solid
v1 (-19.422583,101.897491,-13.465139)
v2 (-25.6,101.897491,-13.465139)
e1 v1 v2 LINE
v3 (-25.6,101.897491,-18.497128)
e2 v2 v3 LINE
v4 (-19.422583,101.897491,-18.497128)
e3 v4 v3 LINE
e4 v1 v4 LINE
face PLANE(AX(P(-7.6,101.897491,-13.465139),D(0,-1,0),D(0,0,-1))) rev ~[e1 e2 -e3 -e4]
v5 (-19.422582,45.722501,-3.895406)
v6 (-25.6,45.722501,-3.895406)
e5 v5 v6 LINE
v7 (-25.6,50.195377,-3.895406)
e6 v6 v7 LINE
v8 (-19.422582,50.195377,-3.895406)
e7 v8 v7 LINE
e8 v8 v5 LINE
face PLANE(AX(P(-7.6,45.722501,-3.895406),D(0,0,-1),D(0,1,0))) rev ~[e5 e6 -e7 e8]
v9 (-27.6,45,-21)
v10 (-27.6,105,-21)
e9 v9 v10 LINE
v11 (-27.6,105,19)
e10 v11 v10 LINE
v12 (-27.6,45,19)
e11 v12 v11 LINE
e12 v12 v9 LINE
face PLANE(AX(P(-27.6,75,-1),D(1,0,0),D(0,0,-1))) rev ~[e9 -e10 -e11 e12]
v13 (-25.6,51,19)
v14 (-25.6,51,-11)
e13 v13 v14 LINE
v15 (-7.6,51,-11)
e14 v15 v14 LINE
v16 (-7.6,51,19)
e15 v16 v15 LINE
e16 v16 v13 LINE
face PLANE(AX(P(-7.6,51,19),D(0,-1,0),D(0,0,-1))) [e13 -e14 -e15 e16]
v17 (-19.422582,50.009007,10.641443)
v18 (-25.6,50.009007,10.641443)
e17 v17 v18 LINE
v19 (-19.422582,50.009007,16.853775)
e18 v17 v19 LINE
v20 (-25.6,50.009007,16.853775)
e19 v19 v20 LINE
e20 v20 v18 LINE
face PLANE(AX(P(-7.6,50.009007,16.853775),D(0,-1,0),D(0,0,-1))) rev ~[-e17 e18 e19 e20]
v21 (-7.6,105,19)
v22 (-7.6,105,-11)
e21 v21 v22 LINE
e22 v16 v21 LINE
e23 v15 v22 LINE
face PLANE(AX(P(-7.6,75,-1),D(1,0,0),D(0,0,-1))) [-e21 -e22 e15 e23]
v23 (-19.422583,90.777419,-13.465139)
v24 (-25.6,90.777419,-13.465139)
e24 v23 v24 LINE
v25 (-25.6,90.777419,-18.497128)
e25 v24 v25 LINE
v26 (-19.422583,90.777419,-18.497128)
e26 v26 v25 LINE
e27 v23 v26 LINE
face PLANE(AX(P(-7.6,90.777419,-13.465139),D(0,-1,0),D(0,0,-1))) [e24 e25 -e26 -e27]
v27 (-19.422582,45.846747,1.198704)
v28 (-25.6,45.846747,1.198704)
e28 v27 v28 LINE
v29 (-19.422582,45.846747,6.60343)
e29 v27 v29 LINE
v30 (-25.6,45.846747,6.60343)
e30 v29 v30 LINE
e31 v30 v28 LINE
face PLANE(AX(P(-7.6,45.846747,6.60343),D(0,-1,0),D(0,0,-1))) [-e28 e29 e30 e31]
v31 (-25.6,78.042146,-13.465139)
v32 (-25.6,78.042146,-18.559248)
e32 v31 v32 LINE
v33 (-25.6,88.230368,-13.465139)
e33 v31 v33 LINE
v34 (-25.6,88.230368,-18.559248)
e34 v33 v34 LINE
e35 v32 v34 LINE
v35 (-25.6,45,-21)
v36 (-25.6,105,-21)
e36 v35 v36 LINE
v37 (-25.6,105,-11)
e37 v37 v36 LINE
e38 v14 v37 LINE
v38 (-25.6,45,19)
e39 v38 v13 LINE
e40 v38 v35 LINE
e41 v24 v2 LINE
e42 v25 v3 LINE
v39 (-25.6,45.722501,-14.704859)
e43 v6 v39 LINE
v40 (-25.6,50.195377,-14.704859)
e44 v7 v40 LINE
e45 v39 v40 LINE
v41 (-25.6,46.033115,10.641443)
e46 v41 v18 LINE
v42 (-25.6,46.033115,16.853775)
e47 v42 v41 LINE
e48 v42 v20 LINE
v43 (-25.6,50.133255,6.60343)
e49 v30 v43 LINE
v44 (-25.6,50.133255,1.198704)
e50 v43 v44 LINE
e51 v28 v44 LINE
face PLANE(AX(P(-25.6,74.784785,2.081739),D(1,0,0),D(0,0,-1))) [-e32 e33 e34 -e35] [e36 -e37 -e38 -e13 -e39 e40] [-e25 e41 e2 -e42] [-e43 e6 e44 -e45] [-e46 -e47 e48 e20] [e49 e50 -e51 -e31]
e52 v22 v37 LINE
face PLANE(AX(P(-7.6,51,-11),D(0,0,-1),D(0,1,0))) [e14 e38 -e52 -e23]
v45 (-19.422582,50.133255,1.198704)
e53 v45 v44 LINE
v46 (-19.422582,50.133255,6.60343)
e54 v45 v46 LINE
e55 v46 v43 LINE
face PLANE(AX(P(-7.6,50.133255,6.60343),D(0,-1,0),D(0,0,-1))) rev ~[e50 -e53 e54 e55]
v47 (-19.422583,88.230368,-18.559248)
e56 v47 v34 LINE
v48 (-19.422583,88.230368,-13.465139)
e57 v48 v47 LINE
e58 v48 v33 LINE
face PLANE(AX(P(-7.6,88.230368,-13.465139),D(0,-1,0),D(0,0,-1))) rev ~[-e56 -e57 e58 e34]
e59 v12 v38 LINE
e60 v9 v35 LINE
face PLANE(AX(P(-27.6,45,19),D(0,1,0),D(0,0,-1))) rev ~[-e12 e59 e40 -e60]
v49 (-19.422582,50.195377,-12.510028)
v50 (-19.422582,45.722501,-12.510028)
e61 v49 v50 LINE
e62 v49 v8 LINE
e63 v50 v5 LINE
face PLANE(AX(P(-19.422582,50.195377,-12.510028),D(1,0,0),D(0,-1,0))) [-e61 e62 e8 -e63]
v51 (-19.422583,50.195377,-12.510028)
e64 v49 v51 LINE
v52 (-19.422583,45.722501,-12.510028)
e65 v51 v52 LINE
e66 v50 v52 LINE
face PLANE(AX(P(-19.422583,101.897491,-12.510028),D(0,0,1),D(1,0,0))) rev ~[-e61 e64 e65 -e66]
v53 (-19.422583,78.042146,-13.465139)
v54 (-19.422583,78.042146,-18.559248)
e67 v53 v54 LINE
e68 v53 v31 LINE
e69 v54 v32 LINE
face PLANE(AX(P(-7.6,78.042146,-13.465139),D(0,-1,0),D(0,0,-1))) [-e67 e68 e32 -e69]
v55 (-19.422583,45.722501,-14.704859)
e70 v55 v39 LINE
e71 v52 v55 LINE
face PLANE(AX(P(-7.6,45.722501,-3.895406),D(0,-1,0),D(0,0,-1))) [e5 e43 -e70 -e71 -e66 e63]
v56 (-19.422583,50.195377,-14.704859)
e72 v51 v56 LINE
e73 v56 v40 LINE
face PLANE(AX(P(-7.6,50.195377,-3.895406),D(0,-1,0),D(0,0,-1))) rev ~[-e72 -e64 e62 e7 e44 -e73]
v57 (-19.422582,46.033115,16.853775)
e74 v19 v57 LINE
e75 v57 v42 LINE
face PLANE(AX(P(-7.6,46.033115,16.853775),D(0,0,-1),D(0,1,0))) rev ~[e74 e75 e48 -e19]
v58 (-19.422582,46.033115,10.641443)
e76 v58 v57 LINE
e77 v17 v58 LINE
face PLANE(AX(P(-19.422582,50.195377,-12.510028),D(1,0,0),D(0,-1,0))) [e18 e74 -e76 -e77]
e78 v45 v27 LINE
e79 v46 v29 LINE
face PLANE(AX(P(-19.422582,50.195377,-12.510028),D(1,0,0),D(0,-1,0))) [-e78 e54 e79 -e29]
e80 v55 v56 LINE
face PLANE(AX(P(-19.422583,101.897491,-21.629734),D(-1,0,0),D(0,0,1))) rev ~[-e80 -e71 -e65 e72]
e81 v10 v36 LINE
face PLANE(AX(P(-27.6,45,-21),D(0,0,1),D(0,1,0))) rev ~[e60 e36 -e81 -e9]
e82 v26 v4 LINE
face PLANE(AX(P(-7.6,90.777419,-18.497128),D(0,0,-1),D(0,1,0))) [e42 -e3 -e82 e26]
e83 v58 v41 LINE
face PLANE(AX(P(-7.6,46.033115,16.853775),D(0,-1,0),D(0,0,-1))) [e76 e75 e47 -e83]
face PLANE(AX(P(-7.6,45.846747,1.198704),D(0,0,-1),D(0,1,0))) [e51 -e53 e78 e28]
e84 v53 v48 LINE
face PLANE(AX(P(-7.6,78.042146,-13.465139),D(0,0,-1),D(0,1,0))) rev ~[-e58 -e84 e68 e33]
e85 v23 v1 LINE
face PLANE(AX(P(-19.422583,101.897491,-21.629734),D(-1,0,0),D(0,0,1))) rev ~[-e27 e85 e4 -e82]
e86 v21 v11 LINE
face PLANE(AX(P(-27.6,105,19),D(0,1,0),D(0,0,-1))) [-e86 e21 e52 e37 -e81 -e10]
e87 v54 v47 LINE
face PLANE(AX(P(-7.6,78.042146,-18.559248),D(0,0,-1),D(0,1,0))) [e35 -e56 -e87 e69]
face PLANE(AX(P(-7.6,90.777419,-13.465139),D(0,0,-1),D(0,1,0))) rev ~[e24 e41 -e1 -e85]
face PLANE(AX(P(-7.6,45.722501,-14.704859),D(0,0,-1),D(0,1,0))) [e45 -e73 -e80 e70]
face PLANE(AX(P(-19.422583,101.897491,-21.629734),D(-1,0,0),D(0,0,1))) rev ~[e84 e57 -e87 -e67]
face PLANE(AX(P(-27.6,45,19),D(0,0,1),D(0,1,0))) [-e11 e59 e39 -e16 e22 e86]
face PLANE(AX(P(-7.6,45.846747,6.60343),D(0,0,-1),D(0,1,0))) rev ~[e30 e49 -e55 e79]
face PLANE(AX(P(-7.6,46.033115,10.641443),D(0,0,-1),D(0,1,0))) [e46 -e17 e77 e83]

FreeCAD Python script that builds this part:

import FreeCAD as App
import Part
import Sketcher
Q = App.Units.Quantity

doc = App.newDocument("Part")
body = doc.addObject("PartDesign::Body", "Body")

# Sketch on XY plane
sketch1 = body.newObject("Sketcher::SketchObject", "Sketch")
sketch1.AttachmentSupport = (doc.getObject("XY_Plane"), [""])
sketch1.MapMode = "FlatFace"
sketch1.addGeometry([
    Part.LineSegment(App.Vector(-20, 30, 0), App.Vector(-20, -30, 0)),
    Part.LineSegment(App.Vector(-20, -30, 0), App.Vector(20, -30, 0)),
    Part.LineSegment(App.Vector(20, -30, 0), App.Vector(20, 30, 0)),
    Part.LineSegment(App.Vector(20, 30, 0), App.Vector(-20, 30, 0)),
], False)
sketch1.addConstraint([
    Sketcher.Constraint("Coincident", 0, 2, 1, 1),
    Sketcher.Constraint("Coincident", 1, 2, 2, 1),
    Sketcher.Constraint("Coincident", 2, 2, 3, 1),
    Sketcher.Constraint("Coincident", 3, 2, 0, 1),
    Sketcher.Constraint("Vertical", 0),
    Sketcher.Constraint("Horizontal", 1),
    Sketcher.Constraint("Vertical", 2),
    Sketcher.Constraint("Horizontal", 3),
    Sketcher.Constraint("Symmetric", 0, 2, 2, 2, -1, 1),
    Sketcher.Constraint("DistanceX", 1, 1, 1, 2, Q("40 mm")),
    Sketcher.Constraint("DistanceY", 0, 2, 0, 1, Q("60 mm")),
])
pad1 = body.newObject("PartDesign::Pad", "Pad")
pad1.Profile = sketch1
pad1.Length = 20

# Sketch on XY plane
sketch2 = body.newObject("Sketcher::SketchObject", "Sketch001")
sketch2.AttachmentSupport = (doc.getObject("XY_Plane"), [""])
sketch2.MapMode = "FlatFace"
sketch2.AttachmentOffset = App.Placement(App.Vector(0, 0, 20), App.Rotation())
sketch2.addGeometry([
    Part.LineSegment(App.Vector(-41.450038, 37.736043, 0), App.Vector(-41.450038, -38.166472, 0)),  # 0
    Part.LineSegment(App.Vector(-41.450038, -38.166472, 0), App.Vector(35.286561, -38.166472, 0)),  # 1
    Part.LineSegment(App.Vector(35.286561, -38.166472, 0), App.Vector(35.286561, 37.736043, 0)),  # 2
    Part.LineSegment(App.Vector(35.286561, 37.736043, 0), App.Vector(-41.450038, 37.736043, 0)),  # 3
    Part.LineSegment(App.Vector(-11.641443, -28.966885, 0), App.Vector(-17.853775, -28.966885, 0)),  # 4
    Part.LineSegment(App.Vector(-17.853775, -28.966885, 0), App.Vector(-17.853775, -24.990993, 0)),  # 5
    Part.LineSegment(App.Vector(-17.853775, -24.990993, 0), App.Vector(-11.641443, -24.990993, 0)),  # 6
    Part.LineSegment(App.Vector(-11.641443, -24.990993, 0), App.Vector(-11.641443, -28.966885, 0)),  # 7
    Part.LineSegment(App.Vector(-2.198704, -29.153254, 0), App.Vector(-7.60343, -29.153254, 0)),  # 8
    Part.LineSegment(App.Vector(-7.60343, -29.153254, 0), App.Vector(-7.60343, -24.866744, 0)),  # 9
    Part.LineSegment(App.Vector(-7.60343, -24.866744, 0), App.Vector(-2.198704, -24.866744, 0)),  # 10
    Part.LineSegment(App.Vector(-2.198704, -24.866744, 0), App.Vector(-2.198704, -29.153254, 0)),  # 11
    Part.LineSegment(App.Vector(13.704859, -29.2775, 0), App.Vector(2.895406, -29.2775, 0)),  # 12
    Part.LineSegment(App.Vector(2.895406, -29.2775, 0), App.Vector(2.895406, -24.804623, 0)),  # 13
    Part.LineSegment(App.Vector(2.895406, -24.804623, 0), App.Vector(13.704859, -24.804623, 0)),  # 14
    Part.LineSegment(App.Vector(13.704859, -24.804623, 0), App.Vector(13.704859, -29.2775, 0)),  # 15
    Part.LineSegment(App.Vector(10, -24, 0), App.Vector(-20, -24, 0)),  # 16
    Part.LineSegment(App.Vector(-20, -24, 0), App.Vector(-20, 30, 0)),  # 17
    Part.LineSegment(App.Vector(-20, 30, 0), App.Vector(10, 30, 0)),  # 18
    Part.LineSegment(App.Vector(10, 30, 0), App.Vector(10, -24, 0)),  # 19
    Part.LineSegment(App.Vector(17.559248, 3.042146, 0), App.Vector(12.465139, 3.042146, 0)),  # 20
    Part.LineSegment(App.Vector(12.465139, 3.042146, 0), App.Vector(12.465139, 13.230368, 0)),  # 21
    Part.LineSegment(App.Vector(12.465139, 13.230368, 0), App.Vector(17.559248, 13.230368, 0)),  # 22
    Part.LineSegment(App.Vector(17.559248, 13.230368, 0), App.Vector(17.559248, 3.042146, 0)),  # 23
    Part.LineSegment(App.Vector(17.497128, 15.77742, 0), App.Vector(12.465139, 15.77742, 0)),  # 24
    Part.LineSegment(App.Vector(12.465139, 15.77742, 0), App.Vector(12.465139, 26.89749, 0)),  # 25
    Part.LineSegment(App.Vector(12.465139, 26.89749, 0), App.Vector(17.497128, 26.89749, 0)),  # 26
    Part.LineSegment(App.Vector(17.497128, 26.89749, 0), App.Vector(17.497128, 15.77742, 0)),  # 27
], False)
sketch2.addConstraint([
    Sketcher.Constraint("Coincident", 0, 2, 1, 1),
    Sketcher.Constraint("Coincident", 1, 2, 2, 1),
    Sketcher.Constraint("Coincident", 2, 2, 3, 1),
    Sketcher.Constraint("Coincident", 3, 2, 0, 1),
    Sketcher.Constraint("Coincident", 4, 2, 5, 1),
    Sketcher.Constraint("Coincident", 5, 2, 6, 1),
    Sketcher.Constraint("Coincident", 6, 2, 7, 1),
    Sketcher.Constraint("Coincident", 7, 2, 4, 1),
    Sketcher.Constraint("Coincident", 8, 2, 9, 1),
    Sketcher.Constraint("Coincident", 9, 2, 10, 1),
    Sketcher.Constraint("Coincident", 10, 2, 11, 1),
    Sketcher.Constraint("Coincident", 11, 2, 8, 1),
    Sketcher.Constraint("Coincident", 12, 2, 13, 1),
    Sketcher.Constraint("Coincident", 13, 2, 14, 1),
    Sketcher.Constraint("Coincident", 14, 2, 15, 1),
    Sketcher.Constraint("Coincident", 15, 2, 12, 1),
    Sketcher.Constraint("Coincident", 16, 2, 17, 1),
    Sketcher.Constraint("Coincident", 17, 2, 18, 1),
    Sketcher.Constraint("Coincident", 18, 2, 19, 1),
    Sketcher.Constraint("Coincident", 19, 2, 16, 1),
    Sketcher.Constraint("Coincident", 20, 2, 21, 1),
    Sketcher.Constraint("Coincident", 21, 2, 22, 1),
    Sketcher.Constraint("Coincident", 22, 2, 23, 1),
    Sketcher.Constraint("Coincident", 23, 2, 20, 1),
    Sketcher.Constraint("Coincident", 24, 2, 25, 1),
    Sketcher.Constraint("Coincident", 25, 2, 26, 1),
    Sketcher.Constraint("Coincident", 26, 2, 27, 1),
    Sketcher.Constraint("Coincident", 27, 2, 24, 1),
    Sketcher.Constraint("Vertical", 0),
    Sketcher.Constraint("Horizontal", 1),
    Sketcher.Constraint("Vertical", 2),
    Sketcher.Constraint("Horizontal", 3),
    Sketcher.Constraint("Horizontal", 4),
    Sketcher.Constraint("Vertical", 5),
    Sketcher.Constraint("Horizontal", 6),
    Sketcher.Constraint("Vertical", 7),
    Sketcher.Constraint("Horizontal", 8),
    Sketcher.Constraint("Vertical", 9),
    Sketcher.Constraint("Horizontal", 10),
    Sketcher.Constraint("Vertical", 11),
    Sketcher.Constraint("Horizontal", 12),
    Sketcher.Constraint("Vertical", 13),
    Sketcher.Constraint("Horizontal", 14),
    Sketcher.Constraint("Vertical", 15),
    Sketcher.Constraint("Horizontal", 16),
    Sketcher.Constraint("Vertical", 17),
    Sketcher.Constraint("Horizontal", 18),
    Sketcher.Constraint("Vertical", 19),
    Sketcher.Constraint("Horizontal", 20),
    Sketcher.Constraint("Vertical", 21),
    Sketcher.Constraint("Horizontal", 22),
    Sketcher.Constraint("Vertical", 23),
    Sketcher.Constraint("Horizontal", 24),
    Sketcher.Constraint("Vertical", 25),
    Sketcher.Constraint("Horizontal", 26),
    Sketcher.Constraint("Vertical", 27),
    Sketcher.Constraint("Vertical", 21, 2, 24, 2),
    Sketcher.Constraint("DistanceX", 16, 2, 16, 1, Q("30 mm")),
    Sketcher.Constraint("DistanceY", 17, 1, 17, 2, Q("54 mm")),
    Sketcher.Constraint("DistanceX", 16, 2, -1, 1, Q("20 mm")),
    Sketcher.Constraint("DistanceY", 16, 2, -1, 1, Q("24 mm")),
    Sketcher.Constraint("DistanceX", 1, 1, 1, 2, Q("76.736599 mm")),
    Sketcher.Constraint("DistanceX", 4, 2, 4, 1, Q("6.212331 mm")),
    Sketcher.Constraint("DistanceX", 20, 2, 20, 1, Q("5.094109 mm")),
    Sketcher.Constraint("DistanceX", 24, 2, 24, 1, Q("5.031989 mm")),
    Sketcher.Constraint("DistanceY", 9, 1, 9, 2, Q("4.286509 mm")),
    Sketcher.Constraint("DistanceY", 25, 1, 25, 2, Q("11.120071 mm")),
    Sketcher.Constraint("DistanceY", 12, 2, -1, 1, Q("29.2775 mm")),
    Sketcher.Constraint("DistanceX", 8, 2, 8, 1, Q("5.404726 mm")),
    Sketcher.Constraint("DistanceX", 12, 2, 12, 1, Q("10.809453 mm")),
    Sketcher.Constraint("DistanceY", 0, 2, 0, 1, Q("75.902515 mm")),
    Sketcher.Constraint("DistanceY", 5, 1, 5, 2, Q("3.975892 mm")),
    Sketcher.Constraint("DistanceY", 13, 1, 13, 2, Q("4.472877 mm")),
    Sketcher.Constraint("DistanceY", 21, 1, 21, 2, Q("10.188222 mm")),
    Sketcher.Constraint("DistanceX", 0, 2, -1, 1, Q("41.450038 mm")),
    Sketcher.Constraint("DistanceX", 8, 2, -1, 1, Q("7.60343 mm")),
    Sketcher.Constraint("DistanceX", -1, 1, 14, 2, Q("13.704859 mm")),
    Sketcher.Constraint("DistanceX", -1, 1, 20, 2, Q("12.465139 mm")),
    Sketcher.Constraint("DistanceY", -1, 1, 24, 2, Q("15.77742 mm")),
    Sketcher.Constraint("DistanceY", 0, 2, 5, 2, Q("13.175479 mm")),
    Sketcher.Constraint("DistanceY", 8, 2, 7, 2, Q("0.186369 mm")),
    Sketcher.Constraint("DistanceX", 6, 2, 10, 2, Q("9.442739 mm")),
    Sketcher.Constraint("DistanceY", 10, 2, 13, 2, Q("0.062122 mm")),
    Sketcher.Constraint("DistanceY", 14, 2, 20, 2, Q("27.846768 mm")),
])
pocket1 = body.newObject("PartDesign::Pocket", "Pocket")
pocket1.Profile = sketch2
pocket1.Length = 18

# Sketch on XZ plane
sketch3 = body.newObject("Sketcher::SketchObject", "Sketch002")
sketch3.AttachmentSupport = (doc.getObject("XZ_Plane"), [""])
sketch3.MapMode = "FlatFace"
sketch3.AttachmentOffset = App.Placement(App.Vector(0, 0, -26.897491), App.Rotation())
sketch3.addGeometry([
    Part.LineSegment(App.Vector(20.629734, 22.269789, 0), App.Vector(20.629734, 8.177417, 0)),
    Part.LineSegment(App.Vector(20.629734, 8.177417, 0), App.Vector(11.510028, 8.177417, 0)),
    Part.LineSegment(App.Vector(11.510028, 8.177417, 0), App.Vector(11.510028, 22.269789, 0)),
    Part.LineSegment(App.Vector(11.510028, 22.269789, 0), App.Vector(20.629734, 22.269789, 0)),
], False)
sketch3.addConstraint([
    Sketcher.Constraint("Coincident", 0, 2, 1, 1),
    Sketcher.Constraint("Coincident", 1, 2, 2, 1),
    Sketcher.Constraint("Coincident", 2, 2, 3, 1),
    Sketcher.Constraint("Coincident", 3, 2, 0, 1),
    Sketcher.Constraint("Vertical", 0),
    Sketcher.Constraint("Horizontal", 1),
    Sketcher.Constraint("Vertical", 2),
    Sketcher.Constraint("Horizontal", 3),
    Sketcher.Constraint("DistanceY", 0, 2, 0, 1, Q("14.092372 mm")),
    Sketcher.Constraint("DistanceX", 1, 2, 1, 1, Q("9.119706 mm")),
    Sketcher.Constraint("DistanceY", -1, 1, 2, 2, Q("22.269789 mm")),
    Sketcher.Constraint("DistanceX", -1, 1, 0, 2, Q("20.629734 mm")),
])
pocket2 = body.newObject("PartDesign::Pocket", "Pocket001")
pocket2.Profile = sketch3
pocket2.Type = "ThroughAll"
pocket2.Reversed = True

# Sketch on YZ plane
sketch4 = body.newObject("Sketcher::SketchObject", "Sketch003")
sketch4.AttachmentSupport = (doc.getObject("YZ_Plane"), [""])
sketch4.MapMode = "FlatFace"
sketch4.AttachmentOffset = App.Placement(App.Vector(0, 0, 11.510028), App.Rotation())
sketch4.addGeometry([
    Part.LineSegment(App.Vector(-24.804623, 8.177418, 0), App.Vector(-24.804623, 20, 0)),
    Part.LineSegment(App.Vector(-24.804623, 20, 0), App.Vector(-29.2775, 20, 0)),
    Part.LineSegment(App.Vector(-29.2775, 20, 0), App.Vector(-29.2775, 8.177418, 0)),
    Part.LineSegment(App.Vector(-29.2775, 8.177418, 0), App.Vector(-24.804623, 8.177418, 0)),
], False)
sketch4.addConstraint([
    Sketcher.Constraint("Coincident", 0, 2, 1, 1),
    Sketcher.Constraint("Coincident", 1, 2, 2, 1),
    Sketcher.Constraint("Coincident", 2, 2, 3, 1),
    Sketcher.Constraint("Coincident", 3, 2, 0, 1),
    Sketcher.Constraint("Vertical", 0),
    Sketcher.Constraint("Horizontal", 1),
    Sketcher.Constraint("Vertical", 2),
    Sketcher.Constraint("Horizontal", 3),
    Sketcher.Constraint("DistanceY", -1, 1, 0, 2, Q("20 mm")),
    Sketcher.Constraint("DistanceX", 1, 2, -1, 1, Q("29.2775 mm")),
    Sketcher.Constraint("DistanceX", 1, 2, 1, 1, Q("4.472877 mm")),
    Sketcher.Constraint("DistanceY", 0, 1, 0, 2, Q("11.822582 mm")),
])
pocket3 = body.newObject("PartDesign::Pocket", "Pocket002")
pocket3.Profile = sketch4
pocket3.Type = "ThroughAll"
body2 = doc.addObject("PartDesign::Body", "Body001")
doc.recompute()

body.Placement = App.Placement(App.Vector(-27.6, 75, -1), App.Rotation(App.Vector(0, 1, 0), 90))
boolean = body2.newObject("PartDesign::Boolean", "Boolean")
boolean.Type = "Fuse"
boolean.addObjects([body])

doc.recompute()
